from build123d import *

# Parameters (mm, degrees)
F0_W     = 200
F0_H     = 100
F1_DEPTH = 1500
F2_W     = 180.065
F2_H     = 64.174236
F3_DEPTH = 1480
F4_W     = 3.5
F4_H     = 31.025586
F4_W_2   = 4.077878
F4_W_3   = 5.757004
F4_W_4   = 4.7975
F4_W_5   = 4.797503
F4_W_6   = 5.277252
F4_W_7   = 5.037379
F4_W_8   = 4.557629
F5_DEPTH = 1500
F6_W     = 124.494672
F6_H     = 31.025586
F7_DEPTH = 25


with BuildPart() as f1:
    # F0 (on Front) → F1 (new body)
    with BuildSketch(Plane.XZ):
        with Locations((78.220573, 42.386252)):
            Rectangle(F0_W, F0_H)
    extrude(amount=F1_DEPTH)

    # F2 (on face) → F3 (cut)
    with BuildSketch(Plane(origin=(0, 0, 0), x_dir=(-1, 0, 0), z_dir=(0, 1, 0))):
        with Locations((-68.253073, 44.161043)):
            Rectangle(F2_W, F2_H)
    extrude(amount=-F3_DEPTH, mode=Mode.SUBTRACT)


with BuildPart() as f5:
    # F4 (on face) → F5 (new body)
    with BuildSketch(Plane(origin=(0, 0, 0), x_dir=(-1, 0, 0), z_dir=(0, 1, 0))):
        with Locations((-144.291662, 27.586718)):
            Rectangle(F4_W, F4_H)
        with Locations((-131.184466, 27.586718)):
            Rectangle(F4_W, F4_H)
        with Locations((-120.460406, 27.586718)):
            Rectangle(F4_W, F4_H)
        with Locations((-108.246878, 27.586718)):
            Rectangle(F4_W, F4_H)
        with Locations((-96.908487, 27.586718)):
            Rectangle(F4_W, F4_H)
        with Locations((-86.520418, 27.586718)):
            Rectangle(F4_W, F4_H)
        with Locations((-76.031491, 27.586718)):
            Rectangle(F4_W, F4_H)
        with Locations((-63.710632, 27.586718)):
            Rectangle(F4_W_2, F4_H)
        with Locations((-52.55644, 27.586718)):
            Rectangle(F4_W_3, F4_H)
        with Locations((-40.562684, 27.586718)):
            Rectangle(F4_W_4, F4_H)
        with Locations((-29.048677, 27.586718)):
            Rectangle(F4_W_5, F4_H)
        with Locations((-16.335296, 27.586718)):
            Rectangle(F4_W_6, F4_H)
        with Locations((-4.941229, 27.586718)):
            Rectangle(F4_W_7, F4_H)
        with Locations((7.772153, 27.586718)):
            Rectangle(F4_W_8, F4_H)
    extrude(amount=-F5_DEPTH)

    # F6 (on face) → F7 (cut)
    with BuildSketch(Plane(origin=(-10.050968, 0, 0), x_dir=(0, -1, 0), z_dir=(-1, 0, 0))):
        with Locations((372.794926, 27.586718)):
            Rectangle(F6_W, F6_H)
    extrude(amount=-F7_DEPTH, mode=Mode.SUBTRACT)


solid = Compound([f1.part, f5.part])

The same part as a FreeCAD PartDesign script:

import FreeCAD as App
import Part
import Sketcher

V = App.Vector
Q = App.Units.Quantity

doc = App.newDocument("Part")
body = doc.addObject("PartDesign::Body", "Body")

sketch1 = body.newObject("Sketcher::SketchObject", "Sketch")
sketch1.AttachmentSupport = (doc.getObject("XZ_Plane"), [""])
sketch1.MapMode = "FlatFace"
sketch1.addGeometry([
    Part.LineSegment(V(-22, 92, 0), V(-22, -8, 0)),
    Part.LineSegment(V(-22, -8, 0), V(178, -8, 0)),
    Part.LineSegment(V(178, -8, 0), V(178, 92, 0)),
    Part.LineSegment(V(178, 92, 0), V(-22, 92, 0)),
], False)
sketch1.addConstraint([
    Sketcher.Constraint("Coincident", 0, 2, 1, 1),
    Sketcher.Constraint("Coincident", 1, 2, 2, 1),
    Sketcher.Constraint("Coincident", 2, 2, 3, 1),
    Sketcher.Constraint("Coincident", 3, 2, 0, 1),
    Sketcher.Constraint("Vertical", 0),
    Sketcher.Constraint("Horizontal", 1),
    Sketcher.Constraint("Vertical", 2),
    Sketcher.Constraint("Horizontal", 3),
    Sketcher.Constraint("DistanceX", 1, 1, 1, 2, Q("200 mm")),
    Sketcher.Constraint("DistanceY", 0, 2, 0, 1, Q("100 mm")),
    Sketcher.Constraint("DistanceY", 0, 2, -1, 1, Q("7.613748 mm")),
    Sketcher.Constraint("DistanceX", 0, 2, -1, 1, Q("21.779427 mm")),
])
pad1 = body.newObject("PartDesign::Pad", "Pad")
pad1.Profile = sketch1
pad1.Length = 1500

sketch2 = body.newObject("Sketcher::SketchObject", "Sketch001")
sketch2.AttachmentSupport = (doc.getObject("XZ_Plane"), [""])
sketch2.MapMode = "FlatFace"
sketch2.addGeometry([
    Part.LineSegment(V(158, 76, 0), V(158, 12, 0)),
    Part.LineSegment(V(158, 12, 0), V(-22, 12, 0)),
    Part.LineSegment(V(-22, 12, 0), V(-22, 76, 0)),
    Part.LineSegment(V(-22, 76, 0), V(158, 76, 0)),
], False)
sketch2.addConstraint([
    Sketcher.Constraint("Coincident", 0, 2, 1, 1),
    Sketcher.Constraint("Coincident", 1, 2, 2, 1),
    Sketcher.Constraint("Coincident", 2, 2, 3, 1),
    Sketcher.Constraint("Coincident", 3, 2, 0, 1),
    Sketcher.Constraint("Vertical", 0),
    Sketcher.Constraint("Horizontal", 1),
    Sketcher.Constraint("Vertical", 2),
    Sketcher.Constraint("Horizontal", 3),
    Sketcher.Constraint("DistanceX", 1, 2, 1, 1, Q("180.065 mm")),
    Sketcher.Constraint("DistanceY", 0, 2, 0, 1, Q("64.174236 mm")),
    Sketcher.Constraint("DistanceY", -1, 1, 2, 2, Q("76.248161 mm")),
    Sketcher.Constraint("DistanceX", -1, 1, 0, 2, Q("158.285573 mm")),
])
pocket1 = body.newObject("PartDesign::Pocket", "Pocket")
pocket1.Profile = sketch2
pocket1.Length = 1480
pocket1.Reversed = True
body2 = doc.addObject("PartDesign::Body", "Body001")
body2.AllowCompound = True

sketch3 = body2.newObject("Sketcher::SketchObject", "Sketch002")
sketch3.AttachmentSupport = (doc.getObject("XZ_Plane001"), [""])
sketch3.MapMode = "FlatFace"
sketch3.addGeometry([
    Part.LineSegment(V(146, 43.1, 0), V(146, 12.1, 0)),
    Part.LineSegment(V(146, 12.1, 0), V(142.5, 12.1, 0)),
    Part.LineSegment(V(142.5, 12.1, 0), V(142.5, 43.1, 0)),
    Part.LineSegment(V(142.5, 43.1, 0), V(146, 43.1, 0)),
    Part.LineSegment(V(132.9, 43.1, 0), V(132.9, 12.1, 0)),
    Part.LineSegment(V(132.9, 12.1, 0), V(129.4, 12.1, 0)),
    Part.LineSegment(V(129.4, 12.1, 0), V(129.4, 43.1, 0)),
    Part.LineSegment(V(129.4, 43.1, 0), V(132.9, 43.1, 0)),
    Part.LineSegment(V(122.2, 43.1, 0), V(122.2, 12.1, 0)),
    Part.LineSegment(V(122.2, 12.1, 0), V(118.7, 12.1, 0)),
    Part.LineSegment(V(118.7, 12.1, 0), V(118.7, 43.1, 0)),
    Part.LineSegment(V(118.7, 43.1, 0), V(122.2, 43.1, 0)),
    Part.LineSegment(V(110, 43.1, 0), V(110, 12.1, 0)),
    Part.LineSegment(V(110, 12.1, 0), V(106.5, 12.1, 0)),
    Part.LineSegment(V(106.5, 12.1, 0), V(106.5, 43.1, 0)),
    Part.LineSegment(V(106.5, 43.1, 0), V(110, 43.1, 0)),
    Part.LineSegment(V(98.7, 43.1, 0), V(98.7, 12.1, 0)),
    Part.LineSegment(V(98.7, 12.1, 0), V(95.2, 12.1, 0)),
    Part.LineSegment(V(95.2, 12.1, 0), V(95.2, 43.1, 0)),
    Part.LineSegment(V(95.2, 43.1, 0), V(98.7, 43.1, 0)),
    Part.LineSegment(V(88.3, 43.1, 0), V(88.3, 12.1, 0)),
    Part.LineSegment(V(88.3, 12.1, 0), V(84.8, 12.1, 0)),
    Part.LineSegment(V(84.8, 12.1, 0), V(84.8, 43.1, 0)),
    Part.LineSegment(V(84.8, 43.1, 0), V(88.3, 43.1, 0)),
    Part.LineSegment(V(77.8, 43.1, 0), V(77.8, 12.1, 0)),
    Part.LineSegment(V(77.8, 12.1, 0), V(74.3, 12.1, 0)),
    Part.LineSegment(V(74.3, 12.1, 0), V(74.3, 43.1, 0)),
    Part.LineSegment(V(74.3, 43.1, 0), V(77.8, 43.1, 0)),
    Part.LineSegment(V(65.7, 43.1, 0), V(65.7, 12.1, 0)),
    Part.LineSegment(V(65.7, 12.1, 0), V(61.7, 12.1, 0)),
    Part.LineSegment(V(61.7, 12.1, 0), V(61.7, 43.1, 0)),
    Part.LineSegment(V(61.7, 43.1, 0), V(65.7, 43.1, 0)),
    Part.LineSegment(V(55.4, 43.1, 0), V(55.4, 12.1, 0)),
    Part.LineSegment(V(55.4, 12.1, 0), V(49.7, 12.1, 0)),
    Part.LineSegment(V(49.7, 12.1, 0), V(49.7, 43.1, 0)),
    Part.LineSegment(V(49.7, 43.1, 0), V(55.4, 43.1, 0)),
    Part.LineSegment(V(43, 43.1, 0), V(43, 12.1, 0)),
    Part.LineSegment(V(43, 12.1, 0), V(38.2, 12.1, 0)),
    Part.LineSegment(V(38.2, 12.1, 0), V(38.2, 43.1, 0)),
    Part.LineSegment(V(38.2, 43.1, 0), V(43, 43.1, 0)),
    Part.LineSegment(V(31.4, 43.1, 0), V(31.4, 12.1, 0)),
    Part.LineSegment(V(31.4, 12.1, 0), V(26.6, 12.1, 0)),
    Part.LineSegment(V(26.6, 12.1, 0), V(26.6, 43.1, 0)),
    Part.LineSegment(V(26.6, 43.1, 0), V(31.4, 43.1, 0)),
    Part.LineSegment(V(19, 43.1, 0), V(19, 12.1, 0)),
    Part.LineSegment(V(19, 12.1, 0), V(13.7, 12.1, 0)),
    Part.LineSegment(V(13.7, 12.1, 0), V(13.7, 43.1, 0)),
    Part.LineSegment(V(13.7, 43.1, 0), V(19, 43.1, 0)),
    Part.LineSegment(V(7.5, 43.1, 0), V(7.5, 12.1, 0)),
    Part.LineSegment(V(7.5, 12.1, 0), V(2.4, 12.1, 0)),
    Part.LineSegment(V(2.4, 12.1, 0), V(2.4, 43.1, 0)),
    Part.LineSegment(V(2.4, 43.1, 0), V(7.5, 43.1, 0)),
    Part.LineSegment(V(-5.5, 43.1, 0), V(-5.5, 12.1, 0)),
    Part.LineSegment(V(-5.5, 12.1, 0), V(-10.1, 12.1, 0)),
    Part.LineSegment(V(-10.1, 12.1, 0), V(-10.1, 43.1, 0)),
    Part.LineSegment(V(-10.1, 43.1, 0), V(-5.5, 43.1, 0)),
], False)
sketch3.addConstraint([
    Sketcher.Constraint("Coincident", 0, 2, 1, 1),
    Sketcher.Constraint("Coincident", 1, 2, 2, 1),
    Sketcher.Constraint("Coincident", 2, 2, 3, 1),
    Sketcher.Constraint("Coincident", 3, 2, 0, 1),
    Sketcher.Constraint("Coincident", 4, 2, 5, 1),
    Sketcher.Constraint("Coincident", 5, 2, 6, 1),
    Sketcher.Constraint("Coincident", 6, 2, 7, 1),
    Sketcher.Constraint("Coincident", 7, 2, 4, 1),
    Sketcher.Constraint("Coincident", 8, 2, 9, 1),
    Sketcher.Constraint("Coincident", 9, 2, 10, 1),
    Sketcher.Constraint("Coincident", 10, 2, 11, 1),
    Sketcher.Constraint("Coincident", 11, 2, 8, 1),
    Sketcher.Constraint("Coincident", 12, 2, 13, 1),
    Sketcher.Constraint("Coincident", 13, 2, 14, 1),
    Sketcher.Constraint("Coincident", 14, 2, 15, 1),
    Sketcher.Constraint("Coincident", 15, 2, 12, 1),
    Sketcher.Constraint("Coincident", 16, 2, 17, 1),
    Sketcher.Constraint("Coincident", 17, 2, 18, 1),
    Sketcher.Constraint("Coincident", 18, 2, 19, 1),
    Sketcher.Constraint("Coincident", 19, 2, 16, 1),
    Sketcher.Constraint("Coincident", 20, 2, 21, 1),
    Sketcher.Constraint("Coincident", 21, 2, 22, 1),
    Sketcher.Constraint("Coincident", 22, 2, 23, 1),
    Sketcher.Constraint("Coincident", 23, 2, 20, 1),
    Sketcher.Constraint("Coincident", 24, 2, 25, 1),
    Sketcher.Constraint("Coincident", 25, 2, 26, 1),
    Sketcher.Constraint("Coincident", 26, 2, 27, 1),
    Sketcher.Constraint("Coincident", 27, 2, 24, 1),
    Sketcher.Constraint("Coincident", 28, 2, 29, 1),
    Sketcher.Constraint("Coincident", 29, 2, 30, 1),
    Sketcher.Constraint("Coincident", 30, 2, 31, 1),
    Sketcher.Constraint("Coincident", 31, 2, 28, 1),
    Sketcher.Constraint("Coincident", 32, 2, 33, 1),
    Sketcher.Constraint("Coincident", 33, 2, 34, 1),
    Sketcher.Constraint("Coincident", 34, 2, 35, 1),
    Sketcher.Constraint("Coincident", 35, 2, 32, 1),
    Sketcher.Constraint("Coincident", 36, 2, 37, 1),
    Sketcher.Constraint("Coincident", 37, 2, 38, 1),
    Sketcher.Constraint("Coincident", 38, 2, 39, 1),
    Sketcher.Constraint("Coincident", 39, 2, 36, 1),
    Sketcher.Constraint("Coincident", 40, 2, 41, 1),
    Sketcher.Constraint("Coincident", 41, 2, 42, 1),
    Sketcher.Constraint("Coincident", 42, 2, 43, 1),
    Sketcher.Constraint("Coincident", 43, 2, 40, 1),
    Sketcher.Constraint("Coincident", 44, 2, 45, 1),
    Sketcher.Constraint("Coincident", 45, 2, 46, 1),
    Sketcher.Constraint("Coincident", 46, 2, 47, 1),
    Sketcher.Constraint("Coincident", 47, 2, 44, 1),
    Sketcher.Constraint("Coincident", 48, 2, 49, 1),
    Sketcher.Constraint("Coincident", 49, 2, 50, 1),
    Sketcher.Constraint("Coincident", 50, 2, 51, 1),
    Sketcher.Constraint("Coincident", 51, 2, 48, 1),
    Sketcher.Constraint("Coincident", 52, 2, 53, 1),
    Sketcher.Constraint("Coincident", 53, 2, 54, 1),
    Sketcher.Constraint("Coincident", 54, 2, 55, 1),
    Sketcher.Constraint("Coincident", 55, 2, 52, 1),
    Sketcher.Constraint("Vertical", 0),
    Sketcher.Constraint("Horizontal", 1),
    Sketcher.Constraint("Vertical", 2),
    Sketcher.Constraint("Horizontal", 3),
    Sketcher.Constraint("Vertical", 4),
    Sketcher.Constraint("Horizontal", 5),
    Sketcher.Constraint("Vertical", 6),
    Sketcher.Constraint("Horizontal", 7),
    Sketcher.Constraint("Vertical", 8),
    Sketcher.Constraint("Horizontal", 9),
    Sketcher.Constraint("Vertical", 10),
    Sketcher.Constraint("Horizontal", 11),
    Sketcher.Constraint("Vertical", 12),
    Sketcher.Constraint("Horizontal", 13),
    Sketcher.Constraint("Vertical", 14),
    Sketcher.Constraint("Horizontal", 15),
    Sketcher.Constraint("Vertical", 16),
    Sketcher.Constraint("Horizontal", 17),
    Sketcher.Constraint("Vertical", 18),
    Sketcher.Constraint("Horizontal", 19),
    Sketcher.Constraint("Vertical", 20),
    Sketcher.Constraint("Horizontal", 21),
    Sketcher.Constraint("Vertical", 22),
    Sketcher.Constraint("Horizontal", 23),
    Sketcher.Constraint("Vertical", 24),
    Sketcher.Constraint("Horizontal", 25),
    Sketcher.Constraint("Vertical", 26),
    Sketcher.Constraint("Horizontal", 27),
    Sketcher.Constraint("Vertical", 28),
    Sketcher.Constraint("Horizontal", 29),
    Sketcher.Constraint("Vertical", 30),
    Sketcher.Constraint("Horizontal", 31),
    Sketcher.Constraint("Vertical", 32),
    Sketcher.Constraint("Horizontal", 33),
    Sketcher.Constraint("Vertical", 34),
    Sketcher.Constraint("Horizontal", 35),
    Sketcher.Constraint("Vertical", 36),
    Sketcher.Constraint("Horizontal", 37),
    Sketcher.Constraint("Vertical", 38),
    Sketcher.Constraint("Horizontal", 39),
    Sketcher.Constraint("Vertical", 40),
    Sketcher.Constraint("Horizontal", 41),
    Sketcher.Constraint("Vertical", 42),
    Sketcher.Constraint("Horizontal", 43),
    Sketcher.Constraint("Vertical", 44),
    Sketcher.Constraint("Horizontal", 45),
    Sketcher.Constraint("Vertical", 46),
    Sketcher.Constraint("Horizontal", 47),
    Sketcher.Constraint("Vertical", 48),
    Sketcher.Constraint("Horizontal", 49),
    Sketcher.Constraint("Vertical", 50),
    Sketcher.Constraint("Horizontal", 51),
    Sketcher.Constraint("Vertical", 52),
    Sketcher.Constraint("Horizontal", 53),
    Sketcher.Constraint("Vertical", 54),
    Sketcher.Constraint("Horizontal", 55),
    Sketcher.Constraint("Horizontal", 1, 2, 4, 2),
    Sketcher.Constraint("Horizontal", 3, 2, 6, 2),
    Sketcher.Constraint("Horizontal", 5, 2, 8, 2),
    Sketcher.Constraint("Horizontal", 7, 2, 10, 2),
    Sketcher.Constraint("Horizontal", 9, 2, 12, 2),
    Sketcher.Constraint("Horizontal", 11, 2, 14, 2),
    Sketcher.Constraint("Horizontal", 13, 2, 16, 2),
    Sketcher.Constraint("Horizontal", 15, 2, 18, 2),
    Sketcher.Constraint("Horizontal", 17, 2, 20, 2),
    Sketcher.Constraint("Horizontal", 19, 2, 22, 2),
    Sketcher.Constraint("Horizontal", 21, 2, 24, 2),
    Sketcher.Constraint("Horizontal", 23, 2, 26, 2),
    Sketcher.Constraint("Horizontal", 25, 2, 28, 2),
    Sketcher.Constraint("Horizontal", 27, 2, 30, 2),
    Sketcher.Constraint("Horizontal", 29, 2, 32, 2),
    Sketcher.Constraint("Horizontal", 31, 2, 34, 2),
    Sketcher.Constraint("Horizontal", 33, 2, 36, 2),
    Sketcher.Constraint("Horizontal", 35, 2, 38, 2),
    Sketcher.Constraint("Horizontal", 37, 2, 40, 2),
    Sketcher.Constraint("Horizontal", 39, 2, 42, 2),
    Sketcher.Constraint("Horizontal", 41, 2, 44, 2),
    Sketcher.Constraint("Horizontal", 43, 2, 46, 2),
    Sketcher.Constraint("Horizontal", 45, 2, 48, 2),
    Sketcher.Constraint("Horizontal", 47, 2, 50, 2),
    Sketcher.Constraint("Horizontal", 49, 2, 52, 2),
    Sketcher.Constraint("Horizontal", 51, 2, 54, 2),
    Sketcher.Constraint("Equal", 3, 5),
    Sketcher.Constraint("Equal", 7, 9),
    Sketcher.Constraint("Equal", 11, 13),
    Sketcher.Constraint("Equal", 15, 17),
    Sketcher.Constraint("Equal", 19, 21),
    Sketcher.Constraint("Equal", 23, 25),
    Sketcher.Constraint("DistanceX", 1, 2, 1, 1, Q("3.5 mm")),
    Sketcher.Constraint("DistanceX", 37, 2, 37, 1, Q("4.7975 mm")),
    Sketcher.Constraint("DistanceX", 29, 2, 29, 1, Q("4.077878 mm")),
    Sketcher.Constraint("DistanceX", 49, 2, 49, 1, Q("5.037379 mm")),
    Sketcher.Constraint("DistanceX", 53, 2, 53, 1, Q("4.557629 mm")),
    Sketcher.Constraint("DistanceX", 29, 2, 25, 2, Q("12.609798 mm")),
    Sketcher.Constraint("DistanceX", 33, 2, 33, 1, Q("5.757004 mm")),
    Sketcher.Constraint("DistanceX", 41, 2, 41, 1, Q("4.797503 mm")),
    Sketcher.Constraint("DistanceX", 45, 2, 45, 1, Q("5.277252 mm")),
    Sketcher.Constraint("DistanceY", 0, 2, 0, 1, Q("31.025586 mm")),
    Sketcher.Constraint("DistanceX", -1, 1, 0, 2, Q("146.041662 mm")),
    Sketcher.Constraint("DistanceY", -1, 1, 2, 2, Q("43.099511 mm")),
    Sketcher.Constraint("DistanceX", -1, 1, 20, 2, Q("88.270418 mm")),
    Sketcher.Constraint("DistanceX", -1, 1, 24, 2, Q("77.781491 mm")),
    Sketcher.Constraint("DistanceX", -1, 1, 40, 2, Q("31.447429 mm")),
    Sketcher.Constraint("DistanceX", -1, 1, 45, 2, Q("13.69667 mm")),
    Sketcher.Constraint("DistanceX", -1, 1, 48, 2, Q("7.459918 mm")),
    Sketcher.Constraint("DistanceX", 52, 2, -1, 1, Q("5.493339 mm")),
    Sketcher.Constraint("DistanceX", 8, 2, 5, 2, Q("7.22406 mm")),
    Sketcher.Constraint("DistanceX", 12, 2, 9, 2, Q("8.713528 mm")),
    Sketcher.Constraint("DistanceX", 16, 2, 13, 2, Q("7.838391 mm")),
    Sketcher.Constraint("DistanceX", 20, 2, 17, 2, Q("6.888069 mm")),
    Sketcher.Constraint("DistanceX", 32, 2, 29, 2, Q("6.236751 mm")),
    Sketcher.Constraint("DistanceX", 36, 2, 32, 2, Q("12.473508 mm")),
])
pad2 = body2.newObject("PartDesign::Pad", "Pad001")
pad2.Profile = sketch3
pad2.Length = 1500

sketch4 = body2.newObject("Sketcher::SketchObject", "Sketch003")
sketch4.AttachmentSupport = (doc.getObject("YZ_Plane001"), [""])
sketch4.MapMode = "FlatFace"
sketch4.AttachmentOffset = App.Placement(V(0, 0, -10.050968), App.Rotation())
sketch4.addGeometry([
    Part.LineSegment(V(-311, 43, 0), V(-311, 12, 0)),
    Part.LineSegment(V(-311, 12, 0), V(-435, 12, 0)),
    Part.LineSegment(V(-435, 12, 0), V(-435, 43, 0)),
    Part.LineSegment(V(-435, 43, 0), V(-311, 43, 0)),
], False)
sketch4.addConstraint([
    Sketcher.Constraint("Coincident", 0, 2, 1, 1),
    Sketcher.Constraint("Coincident", 1, 2, 2, 1),
    Sketcher.Constraint("Coincident", 2, 2, 3, 1),
    Sketcher.Constraint("Coincident", 3, 2, 0, 1),
    Sketcher.Constraint("Vertical", 0),
    Sketcher.Constraint("Horizontal", 1),
    Sketcher.Constraint("Vertical", 2),
    Sketcher.Constraint("Horizontal", 3),
    Sketcher.Constraint("DistanceX", 1, 2, 1, 1, Q("124.494672 mm")),
    Sketcher.Constraint("DistanceY", 0, 2, 0, 1, Q("31.025586 mm")),
    Sketcher.Constraint("DistanceX", 0, 2, -1, 1, Q("310.54759 mm")),
    Sketcher.Constraint("DistanceY", -1, 1, 2, 2, Q("43.099511 mm")),
])
pocket2 = body2.newObject("PartDesign::Pocket", "Pocket001")
pocket2.Profile = sketch4
pocket2.Length = 25
pocket2.Reversed = True

doc.recompute()
